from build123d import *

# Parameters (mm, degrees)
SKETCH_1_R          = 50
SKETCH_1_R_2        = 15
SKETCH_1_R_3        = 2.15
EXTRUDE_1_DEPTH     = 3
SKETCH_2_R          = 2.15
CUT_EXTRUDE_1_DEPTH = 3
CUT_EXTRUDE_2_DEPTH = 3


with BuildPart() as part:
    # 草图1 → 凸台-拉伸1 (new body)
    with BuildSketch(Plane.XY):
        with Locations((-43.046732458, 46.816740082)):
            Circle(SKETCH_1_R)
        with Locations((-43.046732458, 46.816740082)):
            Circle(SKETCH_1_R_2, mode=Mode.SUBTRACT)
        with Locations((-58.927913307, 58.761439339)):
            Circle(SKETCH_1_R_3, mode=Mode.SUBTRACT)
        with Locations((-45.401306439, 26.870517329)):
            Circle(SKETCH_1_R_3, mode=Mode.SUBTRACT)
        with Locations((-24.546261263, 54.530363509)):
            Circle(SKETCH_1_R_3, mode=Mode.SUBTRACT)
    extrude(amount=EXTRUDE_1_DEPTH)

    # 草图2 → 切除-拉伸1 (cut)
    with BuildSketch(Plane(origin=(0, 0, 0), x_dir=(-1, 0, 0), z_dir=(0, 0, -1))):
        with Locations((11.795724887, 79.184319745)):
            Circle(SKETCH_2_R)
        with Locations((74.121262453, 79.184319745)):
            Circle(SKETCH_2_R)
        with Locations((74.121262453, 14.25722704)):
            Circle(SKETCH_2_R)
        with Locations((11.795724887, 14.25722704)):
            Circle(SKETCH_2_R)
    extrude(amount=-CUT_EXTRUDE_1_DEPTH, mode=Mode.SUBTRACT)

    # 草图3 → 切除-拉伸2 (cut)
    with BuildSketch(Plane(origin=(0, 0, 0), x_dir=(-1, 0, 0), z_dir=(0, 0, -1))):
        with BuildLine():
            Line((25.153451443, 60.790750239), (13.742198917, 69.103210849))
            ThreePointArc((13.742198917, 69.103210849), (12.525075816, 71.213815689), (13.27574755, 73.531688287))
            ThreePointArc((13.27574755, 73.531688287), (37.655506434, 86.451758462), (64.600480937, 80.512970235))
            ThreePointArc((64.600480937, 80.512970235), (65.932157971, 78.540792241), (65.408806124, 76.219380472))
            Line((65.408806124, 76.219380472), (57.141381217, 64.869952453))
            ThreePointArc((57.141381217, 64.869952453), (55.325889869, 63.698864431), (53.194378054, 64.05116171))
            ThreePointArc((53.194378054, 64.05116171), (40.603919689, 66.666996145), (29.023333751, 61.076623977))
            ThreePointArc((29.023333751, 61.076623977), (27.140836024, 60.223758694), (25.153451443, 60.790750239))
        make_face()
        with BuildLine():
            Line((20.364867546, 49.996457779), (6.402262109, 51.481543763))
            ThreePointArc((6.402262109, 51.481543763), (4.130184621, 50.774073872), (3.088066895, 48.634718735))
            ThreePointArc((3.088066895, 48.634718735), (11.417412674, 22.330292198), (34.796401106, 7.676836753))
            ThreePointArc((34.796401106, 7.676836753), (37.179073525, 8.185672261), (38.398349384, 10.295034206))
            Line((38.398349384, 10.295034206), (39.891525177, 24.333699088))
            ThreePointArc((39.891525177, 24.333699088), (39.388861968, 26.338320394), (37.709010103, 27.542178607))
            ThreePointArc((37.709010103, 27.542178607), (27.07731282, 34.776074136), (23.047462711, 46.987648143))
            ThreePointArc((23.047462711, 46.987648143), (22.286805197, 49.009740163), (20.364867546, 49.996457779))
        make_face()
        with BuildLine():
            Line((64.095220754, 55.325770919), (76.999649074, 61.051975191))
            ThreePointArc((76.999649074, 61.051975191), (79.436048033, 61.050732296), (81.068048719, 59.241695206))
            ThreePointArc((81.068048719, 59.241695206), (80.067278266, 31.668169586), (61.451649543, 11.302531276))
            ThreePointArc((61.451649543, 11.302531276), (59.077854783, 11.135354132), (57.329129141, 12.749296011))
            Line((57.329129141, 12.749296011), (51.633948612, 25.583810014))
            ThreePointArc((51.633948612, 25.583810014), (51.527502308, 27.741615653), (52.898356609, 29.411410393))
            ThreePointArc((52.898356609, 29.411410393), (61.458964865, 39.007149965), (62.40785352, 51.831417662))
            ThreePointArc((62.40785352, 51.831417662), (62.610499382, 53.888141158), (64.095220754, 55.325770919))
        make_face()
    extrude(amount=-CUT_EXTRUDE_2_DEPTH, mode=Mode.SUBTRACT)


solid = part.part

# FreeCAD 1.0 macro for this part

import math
import FreeCAD as App
import Part
import Sketcher
Q = App.Units.Quantity

doc = App.newDocument("Part")
body = doc.addObject("PartDesign::Body", "Body")

# Sketch on XY plane
sketch1 = body.newObject("Sketcher::SketchObject", "Sketch")
sketch1.AttachmentSupport = (doc.getObject("XY_Plane"), [""])
sketch1.MapMode = "FlatFace"
sketch1.addGeometry([
    Part.Circle(App.Vector(-43, 46.8, 0), App.Vector(0, 0, 1), 50),  # 0
    Part.Circle(App.Vector(-45.4, 26.9, 0), App.Vector(0, 0, 1), 2.1),  # 1
    Part.Circle(App.Vector(-43, 46.8, 0), App.Vector(0, 0, 1), 15),  # 2
    Part.Circle(App.Vector(-58.9, 58.8, 0), App.Vector(0, 0, 1), 2.1),  # 3
    Part.Circle(App.Vector(-24.5, 54.5, 0), App.Vector(0, 0, 1), 2.1),  # 4
], False)
sketch1.addConstraint([
    Sketcher.Constraint("Coincident", 2, 3, 0, 3),
    Sketcher.Constraint("Equal", 1, 3),
    Sketcher.Constraint("Equal", 3, 4),
    Sketcher.Constraint("Diameter", 0, Q("100 mm")),
    Sketcher.Constraint("Diameter", 2, Q("30 mm")),
    Sketcher.Constraint("Diameter", 1, Q("4.3 mm")),
    Sketcher.Constraint("DistanceY", 0, 3, 3, 3, Q("11.944699 mm")),
    Sketcher.Constraint("DistanceY", -1, 1, 0, 3, Q("46.81674 mm")),
    Sketcher.Constraint("DistanceX", 4, 3, -1, 1, Q("24.546261 mm")),
    Sketcher.Constraint("DistanceX", 3, 3, 0, 3, Q("15.881181 mm")),
    Sketcher.Constraint("DistanceX", 0, 3, 4, 3, Q("18.500471 mm")),
    Sketcher.Constraint("DistanceX", 1, 3, -1, 1, Q("45.401306 mm")),
    Sketcher.Constraint("DistanceY", -1, 1, 1, 3, Q("26.870517 mm")),
    Sketcher.Constraint("DistanceY", -1, 1, 4, 3, Q("54.530364 mm")),
])
pad1 = body.newObject("PartDesign::Pad", "Pad")
pad1.Profile = sketch1
pad1.Length = 3

# Sketch on XY plane
sketch2 = body.newObject("Sketcher::SketchObject", "Sketch001")
sketch2.AttachmentSupport = (doc.getObject("XY_Plane"), [""])
sketch2.MapMode = "FlatFace"
sketch2.addGeometry([
    Part.Circle(App.Vector(-11.8, 79.2, 0), App.Vector(0, 0, 1), 2.1),
    Part.Circle(App.Vector(-74.1, 79.2, 0), App.Vector(0, 0, 1), 2.1),
    Part.Circle(App.Vector(-74.1, 14.3, 0), App.Vector(0, 0, 1), 2.1),
    Part.Circle(App.Vector(-11.8, 14.3, 0), App.Vector(0, 0, 1), 2.1),
], False)
sketch2.addConstraint([
    Sketcher.Constraint("Equal", 0, 1),
    Sketcher.Constraint("Equal", 1, 2),
    Sketcher.Constraint("Equal", 2, 3),
    Sketcher.Constraint("Horizontal", 0, 3, 1, 3),
    Sketcher.Constraint("Horizontal", 2, 3, 3, 3),
    Sketcher.Constraint("Vertical", 1, 3, 2, 3),
    Sketcher.Constraint("Vertical", 0, 3, 3, 3),
    Sketcher.Constraint("Diameter", 0, Q("4.3 mm")),
    Sketcher.Constraint("DistanceY", -1, 1, 0, 3, Q("79.18432 mm")),
    Sketcher.Constraint("DistanceX", 0, 3, -1, 1, Q("11.795725 mm")),
    Sketcher.Constraint("DistanceX", 1, 3, -1, 1, Q("74.121262 mm")),
    Sketcher.Constraint("DistanceY", -1, 1, 2, 3, Q("14.257227 mm")),
])
pocket1 = body.newObject("PartDesign::Pocket", "Pocket")
pocket1.Profile = sketch2
pocket1.Length = 3
pocket1.Reversed = True

# Sketch on XY plane
sketch3 = body.newObject("Sketcher::SketchObject", "Sketch002")
sketch3.AttachmentSupport = (doc.getObject("XY_Plane"), [""])
sketch3.MapMode = "FlatFace"
sketch3.addGeometry([
    Part.LineSegment(App.Vector(-13.7, 69.1, 0), App.Vector(-25.2, 60.8, 0)),  # 0
    Part.ArcOfCircle(Part.Circle(App.Vector(-26.9, 63.2, 0), App.Vector(0, 0, 1), 3), math.radians(-135), math.radians(-54)),  # 1
    Part.ArcOfCircle(Part.Circle(App.Vector(-43, 46.8, 0), App.Vector(0, 0, 1), 20), math.radians(45), math.radians(120)),  # 2
    Part.ArcOfCircle(Part.Circle(App.Vector(-54.7, 66.6, 0), App.Vector(0, 0, 1), 3), math.radians(-144), math.radians(-60)),  # 3
    Part.LineSegment(App.Vector(-57.1, 64.9, 0), App.Vector(-65.4, 76.2, 0)),  # 4
    Part.ArcOfCircle(Part.Circle(App.Vector(-63, 78, 0), App.Vector(0, 0, 1), 3), math.radians(123), math.radians(216)),  # 5
    Part.ArcOfCircle(Part.Circle(App.Vector(-43, 46.8, 0), App.Vector(0, 0, 1), 40), math.radians(42), math.radians(123)),  # 6
    Part.ArcOfCircle(Part.Circle(App.Vector(-15.5, 71.5, 0), App.Vector(0, 0, 1), 3), math.radians(-54), math.radians(42)),  # 7
    Part.LineSegment(App.Vector(-20.4, 50, 0), App.Vector(-6.4, 51.5, 0)),  # 8
    Part.ArcOfCircle(Part.Circle(App.Vector(-6.1, 48.5, 0), App.Vector(0, 0, 1), 3), math.radians(3), math.radians(96)),  # 9
    Part.ArcOfCircle(Part.Circle(App.Vector(-43, 46.8, 0), App.Vector(0, 0, 1), 40), math.radians(-78), math.radians(3)),  # 10
    Part.ArcOfCircle(Part.Circle(App.Vector(-35.4, 10.6, 0), App.Vector(0, 0, 1), 3), math.radians(-174), math.radians(-78)),  # 11
    Part.LineSegment(App.Vector(-38.4, 10.3, 0), App.Vector(-39.9, 24.3, 0)),  # 12
    Part.ArcOfCircle(Part.Circle(App.Vector(-36.9, 24.7, 0), App.Vector(0, 0, 1), 3), math.radians(105), math.radians(186)),  # 13
    Part.ArcOfCircle(Part.Circle(App.Vector(-43, 46.8, 0), App.Vector(0, 0, 1), 20), math.radians(-75), math.radians(0)),  # 14
    Part.ArcOfCircle(Part.Circle(App.Vector(-20, 47, 0), App.Vector(0, 0, 1), 3), math.radians(96), math.radians(180)),  # 15
    Part.LineSegment(App.Vector(-77, 61.1, 0), App.Vector(-64.1, 55.3, 0)),  # 16
    Part.ArcOfCircle(Part.Circle(App.Vector(-65.3, 52.6, 0), App.Vector(0, 0, 1), 3), math.radians(-15), math.radians(66)),  # 17
    Part.ArcOfCircle(Part.Circle(App.Vector(-43, 46.8, 0), App.Vector(0, 0, 1), 20), math.radians(165), math.radians(240)),  # 18
    Part.ArcOfCircle(Part.Circle(App.Vector(-54.4, 26.8, 0), App.Vector(0, 0, 1), 3), math.radians(-24), math.radians(60)),  # 19
    Part.LineSegment(App.Vector(-51.6, 25.6, 0), App.Vector(-57.3, 12.7, 0)),  # 20
    Part.ArcOfCircle(Part.Circle(App.Vector(-60.1, 14, 0), App.Vector(0, 0, 1), 3), math.radians(-117), math.radians(-24)),  # 21
    Part.ArcOfCircle(Part.Circle(App.Vector(-43, 46.8, 0), App.Vector(0, 0, 1), 40), math.radians(162), math.radians(243)),  # 22
    Part.ArcOfCircle(Part.Circle(App.Vector(-78.2, 58.3, 0), App.Vector(0, 0, 1), 3), math.radians(66), math.radians(162)),  # 23
], False)
sketch3.addConstraint([
    Sketcher.Constraint("Tangent", 0, 2, 1, 2),
    Sketcher.Constraint("Tangent", 1, 1, 2, 1),
    Sketcher.Constraint("Tangent", 2, 2, 3, 2),
    Sketcher.Constraint("Tangent", 3, 1, 4, 1),
    Sketcher.Constraint("Tangent", 4, 2, 5, 2),
    Sketcher.Constraint("Tangent", 5, 1, 6, 2),
    Sketcher.Constraint("Tangent", 6, 1, 7, 2),
    Sketcher.Constraint("Tangent", 7, 1, 0, 1),
    Sketcher.Constraint("Tangent", 8, 2, 9, 2),
    Sketcher.Constraint("Tangent", 9, 1, 10, 2),
    Sketcher.Constraint("Tangent", 10, 1, 11, 2),
    Sketcher.Constraint("Tangent", 11, 1, 12, 1),
    Sketcher.Constraint("Tangent", 12, 2, 13, 2),
    Sketcher.Constraint("Tangent", 13, 1, 14, 1),
    Sketcher.Constraint("Tangent", 14, 2, 15, 2),
    Sketcher.Constraint("Tangent", 15, 1, 8, 1),
    Sketcher.Constraint("Tangent", 16, 2, 17, 2),
    Sketcher.Constraint("Tangent", 17, 1, 18, 1),
    Sketcher.Constraint("Tangent", 18, 2, 19, 2),
    Sketcher.Constraint("Tangent", 19, 1, 20, 1),
    Sketcher.Constraint("Tangent", 20, 2, 21, 2),
    Sketcher.Constraint("Tangent", 21, 1, 22, 2),
    Sketcher.Constraint("Tangent", 22, 1, 23, 2),
    Sketcher.Constraint("Tangent", 23, 1, 16, 1),
    Sketcher.Constraint("Coincident", 6, 3, 2, 3),
    Sketcher.Constraint("Coincident", 10, 3, 2, 3),
    Sketcher.Constraint("Coincident", 14, 3, 2, 3),
    Sketcher.Constraint("Coincident", 18, 3, 2, 3),
    Sketcher.Constraint("Coincident", 22, 3, 2, 3),
    Sketcher.Constraint("Equal", 1, 3),
    Sketcher.Constraint("Equal", 3, 5),
    Sketcher.Constraint("Equal", 5, 7),
    Sketcher.Constraint("Equal", 7, 9),
    Sketcher.Constraint("Equal", 6, 10),
    Sketcher.Constraint("Equal", 9, 11),
    Sketcher.Constraint("Equal", 11, 13),
    Sketcher.Constraint("Equal", 2, 14),
    Sketcher.Constraint("Equal", 13, 15),
    Sketcher.Constraint("Equal", 15, 17),
    Sketcher.Constraint("Equal", 14, 18),
    Sketcher.Constraint("Equal", 17, 19),
    Sketcher.Constraint("Equal", 19, 21),
    Sketcher.Constraint("Equal", 10, 22),
    Sketcher.Constraint("Equal", 21, 23),
    Sketcher.Constraint("Perpendicular", 0, 4),
    Sketcher.Constraint("Perpendicular", 8, 12),
    Sketcher.Constraint("Perpendicular", 16, 20),
    Sketcher.Constraint("Equal", 4, 8),
    Sketcher.Constraint("Equal", 0, 12),
    Sketcher.Constraint("Equal", 12, 16),
    Sketcher.Constraint("Equal", 8, 20),
    Sketcher.Constraint("Radius", 1, Q("3 mm")),
    Sketcher.Constraint("Radius", 2, Q("20 mm")),
    Sketcher.Constraint("Radius", 6, Q("40 mm")),
    Sketcher.Constraint("DistanceX", 19, 3, -1, 1, Q("54.3761 mm")),
    Sketcher.Constraint("DistanceX", 7, 1, -1, 1, Q("13.742199 mm")),
    Sketcher.Constraint("DistanceX", 10, 1, -1, 1, Q("34.796401 mm")),
    Sketcher.Constraint("DistanceY", -1, 1, 12, 2, Q("24.333699 mm")),
    Sketcher.Constraint("DistanceX", 3, 3, 1, 3, Q("27.796701 mm")),
    Sketcher.Constraint("DistanceX", 23, 3, 5, 3, Q("15.2325 mm")),
    Sketcher.Constraint("DistanceY", 23, 3, 3, 3, Q("8.326501 mm")),
])
pocket2 = body.newObject("PartDesign::Pocket", "Pocket001")
pocket2.Profile = sketch3
pocket2.Length = 3
pocket2.Reversed = True

doc.recompute()
